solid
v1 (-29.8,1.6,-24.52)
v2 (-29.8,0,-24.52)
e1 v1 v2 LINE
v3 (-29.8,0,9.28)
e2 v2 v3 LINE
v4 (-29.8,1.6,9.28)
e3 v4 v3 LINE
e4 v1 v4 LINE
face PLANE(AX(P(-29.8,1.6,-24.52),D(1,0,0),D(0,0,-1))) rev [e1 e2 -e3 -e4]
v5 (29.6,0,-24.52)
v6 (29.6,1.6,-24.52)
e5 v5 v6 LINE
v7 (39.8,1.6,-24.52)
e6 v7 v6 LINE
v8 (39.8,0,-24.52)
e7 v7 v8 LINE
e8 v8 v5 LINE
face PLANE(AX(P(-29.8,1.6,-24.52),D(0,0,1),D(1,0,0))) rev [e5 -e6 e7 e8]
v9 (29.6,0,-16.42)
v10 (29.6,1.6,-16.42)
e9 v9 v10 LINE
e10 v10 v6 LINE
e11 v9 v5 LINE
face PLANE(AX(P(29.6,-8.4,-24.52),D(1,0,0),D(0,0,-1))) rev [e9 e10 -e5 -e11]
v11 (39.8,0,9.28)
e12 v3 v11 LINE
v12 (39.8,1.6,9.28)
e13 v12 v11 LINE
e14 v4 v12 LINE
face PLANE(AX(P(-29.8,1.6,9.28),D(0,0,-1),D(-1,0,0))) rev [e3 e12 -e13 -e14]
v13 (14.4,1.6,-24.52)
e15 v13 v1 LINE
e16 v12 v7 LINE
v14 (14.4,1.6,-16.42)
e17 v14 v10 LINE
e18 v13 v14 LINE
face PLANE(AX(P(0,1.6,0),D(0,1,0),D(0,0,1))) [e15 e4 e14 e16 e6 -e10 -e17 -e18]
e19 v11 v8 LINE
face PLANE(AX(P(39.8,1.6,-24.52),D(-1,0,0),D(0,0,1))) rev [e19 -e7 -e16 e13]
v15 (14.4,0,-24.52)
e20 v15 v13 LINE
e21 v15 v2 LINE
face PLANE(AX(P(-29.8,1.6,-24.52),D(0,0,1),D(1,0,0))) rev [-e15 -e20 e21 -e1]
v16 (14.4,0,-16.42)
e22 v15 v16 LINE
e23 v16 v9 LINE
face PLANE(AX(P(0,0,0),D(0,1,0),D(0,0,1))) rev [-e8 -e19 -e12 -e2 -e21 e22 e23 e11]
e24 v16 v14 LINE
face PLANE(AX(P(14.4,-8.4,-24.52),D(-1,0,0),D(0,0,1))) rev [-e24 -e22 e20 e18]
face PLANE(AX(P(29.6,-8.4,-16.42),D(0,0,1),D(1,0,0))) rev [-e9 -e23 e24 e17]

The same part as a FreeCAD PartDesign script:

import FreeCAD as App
import Part
import Sketcher
from FreeCAD import Vector
Q = App.Units.Quantity


def add_polygon(sketch, points):
    """Adds a closed chain of lines whose ends are joined by coincident constraints."""
    first, n = sketch.GeometryCount, len(points)
    for a, b in zip(points, points[1:] + points[:1]):
        sketch.addGeometry(Part.LineSegment(App.Vector(*a, 0), App.Vector(*b, 0)), False)
    for i in range(n):
        sketch.addConstraint(Sketcher.Constraint("Coincident", first + i, 2, first + (i + 1) % n, 1))

doc = App.newDocument("Part")
body = doc.addObject("PartDesign::Body", "Body")

# Sketch on XZ plane
sketch1 = body.newObject("Sketcher::SketchObject", "Sketch")
sketch1.AttachmentSupport = (doc.getObject("XZ_Plane"), [""])
sketch1.MapMode = "FlatFace"
add_polygon(sketch1, [(-30, -25), (-30, 9), (40, 9), (40, -25)])  # lines 0-3
sketch1.addConstraint([
    Sketcher.Constraint("Vertical", 0),
    Sketcher.Constraint("Horizontal", 1),
    Sketcher.Constraint("Vertical", 2),
    Sketcher.Constraint("Horizontal", 3),
    Sketcher.Constraint("DistanceX", 1, 1, 1, 2, Q("69.6 mm")),
    Sketcher.Constraint("DistanceY", 0, 1, 0, 2, Q("33.8 mm")),
    Sketcher.Constraint("DistanceX", 0, 2, -1, 1, Q("29.8 mm")),
    Sketcher.Constraint("DistanceY", -1, 1, 0, 2, Q("9.28 mm")),
])
pad1 = body.newObject("PartDesign::Pad", "Pad")
pad1.Profile = sketch1
pad1.Length = 1.6
pad1.Reversed = True

# Sketch on XZ plane
sketch2 = body.newObject("Sketcher::SketchObject", "Sketch001")
sketch2.AttachmentSupport = (doc.getObject("XZ_Plane"), [""])
sketch2.MapMode = "FlatFace"
sketch2.AttachmentOffset = App.Placement(Vector(0, 0, -1.6), App.Rotation())
add_polygon(sketch2, [(14, -25), (14, -16), (30, -16), (30, -25)])  # lines 0-3
sketch2.addConstraint([
    Sketcher.Constraint("Vertical", 0),
    Sketcher.Constraint("Horizontal", 1),
    Sketcher.Constraint("Vertical", 2),
    Sketcher.Constraint("Horizontal", 3),
    Sketcher.Constraint("DistanceX", 1, 1, 1, 2, Q("15.2 mm")),
    Sketcher.Constraint("DistanceY", 0, 1, 0, 2, Q("8.1 mm")),
    Sketcher.Constraint("DistanceX", -1, 1, 0, 2, Q("14.4 mm")),
    Sketcher.Constraint("DistanceY", 0, 2, -1, 1, Q("16.42 mm")),
])
pocket1 = body.newObject("PartDesign::Pocket", "Pocket")
pocket1.Profile = sketch2
pocket1.Length = 10
pocket1.Reversed = True

doc.recompute()
